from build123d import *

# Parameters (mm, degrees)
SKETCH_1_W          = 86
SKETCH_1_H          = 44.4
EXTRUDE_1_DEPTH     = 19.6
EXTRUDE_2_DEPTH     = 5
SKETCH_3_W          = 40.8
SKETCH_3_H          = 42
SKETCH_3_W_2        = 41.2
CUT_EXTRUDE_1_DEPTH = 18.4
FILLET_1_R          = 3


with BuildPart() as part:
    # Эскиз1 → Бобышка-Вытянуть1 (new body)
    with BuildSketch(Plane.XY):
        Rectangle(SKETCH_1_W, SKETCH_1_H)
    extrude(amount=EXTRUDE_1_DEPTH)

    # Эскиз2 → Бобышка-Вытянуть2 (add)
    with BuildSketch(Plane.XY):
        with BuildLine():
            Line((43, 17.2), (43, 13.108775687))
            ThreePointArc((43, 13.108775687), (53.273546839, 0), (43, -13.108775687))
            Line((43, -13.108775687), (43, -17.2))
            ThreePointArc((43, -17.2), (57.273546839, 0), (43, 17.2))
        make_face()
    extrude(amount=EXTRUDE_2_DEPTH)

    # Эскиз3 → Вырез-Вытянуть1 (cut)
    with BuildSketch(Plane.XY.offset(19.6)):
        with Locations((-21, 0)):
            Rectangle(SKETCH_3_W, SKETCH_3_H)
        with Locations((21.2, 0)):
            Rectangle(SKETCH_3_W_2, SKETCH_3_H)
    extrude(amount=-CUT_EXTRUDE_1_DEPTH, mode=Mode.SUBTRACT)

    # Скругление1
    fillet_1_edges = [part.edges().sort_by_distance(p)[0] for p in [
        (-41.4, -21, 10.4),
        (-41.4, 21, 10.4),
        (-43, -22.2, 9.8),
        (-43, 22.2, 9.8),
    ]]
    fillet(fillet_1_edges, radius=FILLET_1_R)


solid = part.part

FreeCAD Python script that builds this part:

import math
import FreeCAD as App
import Part
import Sketcher


def edges_at(feature, points):
    """Names of the edges that pass closest to the given points."""
    edges = feature.Shape.Edges
    near = lambda p: min(range(len(edges)), key=lambda i: edges[i].distToShape(Part.Vertex(*p))[0])
    return sorted({f"Edge{near(p) + 1}" for p in points})


def add_polygon(sketch, points):
    """Adds a closed chain of lines whose ends are joined by coincident constraints."""
    first, n = sketch.GeometryCount, len(points)
    for a, b in zip(points, points[1:] + points[:1]):
        sketch.addGeometry(Part.LineSegment(App.Vector(*a, 0), App.Vector(*b, 0)), False)
    for i in range(n):
        sketch.addConstraint(Sketcher.Constraint("Coincident", first + i, 2, first + (i + 1) % n, 1))

doc = App.newDocument("Part")
params = doc.addObject("Spreadsheet::Sheet", "Params")
for row, (alias, value) in enumerate([
    ("sketch1_width", "86 mm"),
    ("sketch1_height", "44.4 mm"),
    ("pad1_length", "19.6 mm"),
    ("sketch2_radius", "13.5 mm"),
    ("sketch2_radius2", "17.5 mm"),
    ("pad2_length", "5 mm"),
    ("sketch3_height", "42 mm"),
    ("sketch3_width", "40.8 mm"),
    ("sketch3_width2", "41.2 mm"),
    ("pocket1_length", "18.4 mm"),
    ("fillet_radius", "3 mm"),
], start=1):
    params.set(f"A{row}", alias)
    params.set(f"B{row}", "=" + value)
    params.setAlias(f"B{row}", alias)

body = doc.addObject("PartDesign::Body", "Body")

sketch1 = body.newObject("Sketcher::SketchObject", "Sketch")
sketch1.AttachmentSupport = (doc.getObject("XY_Plane"), [""])
sketch1.MapMode = "FlatFace"
add_polygon(sketch1, [(-43, 22.2), (-43, -22.2), (43, -22.2), (43, 22.2)])
sketch1.addConstraint(Sketcher.Constraint("Vertical", 0))
sketch1.addConstraint(Sketcher.Constraint("Horizontal", 1))
sketch1.addConstraint(Sketcher.Constraint("Vertical", 2))
sketch1.addConstraint(Sketcher.Constraint("Horizontal", 3))
sketch1.addConstraint(Sketcher.Constraint("Symmetric", 0, 2, 2, 2, -1, 1))
sketch1.addConstraint(Sketcher.Constraint("DistanceX", 1, 1, 1, 2, 86.0))
sketch1.addConstraint(Sketcher.Constraint("DistanceY", 0, 2, 0, 1, 44.4))
sketch1.setExpression("Constraints[9]", "Params.sketch1_width")
sketch1.setExpression("Constraints[10]", "Params.sketch1_height")
pad1 = body.newObject("PartDesign::Pad", "Pad")
pad1.Profile = sketch1
pad1.setExpression("Length", "Params.pad1_length")

sketch2 = body.newObject("Sketcher::SketchObject", "Sketch001")
sketch2.AttachmentSupport = (doc.getObject("XY_Plane"), [""])
sketch2.MapMode = "FlatFace"
sketch2.addGeometry(Part.LineSegment(App.Vector(43, 17.2, 0), App.Vector(43, 13.108776, 0)), False)
sketch2.addGeometry(Part.ArcOfCircle(Part.Circle(App.Vector(39.773547, 0, 0), App.Vector(0, 0, 1), 13.5), math.radians(-76.172678), math.radians(76.172678)), False)
sketch2.addGeometry(Part.LineSegment(App.Vector(43, -13.108776, 0), App.Vector(43, -17.2, 0)), False)
sketch2.addGeometry(Part.ArcOfCircle(Part.Circle(App.Vector(39.773547, 0, 0), App.Vector(0, 0, 1), 17.5), math.radians(-79.375668), math.radians(79.375668)), False)
sketch2.addConstraint(Sketcher.Constraint("Coincident", 0, 2, 1, 2))
sketch2.addConstraint(Sketcher.Constraint("Coincident", 1, 1, 2, 1))
sketch2.addConstraint(Sketcher.Constraint("Coincident", 2, 2, 3, 1))
sketch2.addConstraint(Sketcher.Constraint("Coincident", 3, 2, 0, 1))
sketch2.addConstraint(Sketcher.Constraint("Vertical", 0))
sketch2.addConstraint(Sketcher.Constraint("Vertical", 2))
sketch2.addConstraint(Sketcher.Constraint("Coincident", 3, 3, 1, 3))
sketch2.addConstraint(Sketcher.Constraint("Symmetric", 0, 2, 1, 1, -1))
sketch2.addConstraint(Sketcher.Constraint("Radius", 1, 13.5))
sketch2.addConstraint(Sketcher.Constraint("Radius", 3, 17.5))
sketch2.addConstraint(Sketcher.Constraint("DistanceX", -1, 1, 0, 2, 43.0))
sketch2.addConstraint(Sketcher.Constraint("DistanceY", 2, 2, -1, 1, 17.2))
sketch2.setExpression("Constraints[8]", "Params.sketch2_radius")
sketch2.setExpression("Constraints[9]", "Params.sketch2_radius2")
pad2 = body.newObject("PartDesign::Pad", "Pad001")
pad2.Profile = sketch2
pad2.setExpression("Length", "Params.pad2_length")

sketch3 = body.newObject("Sketcher::SketchObject", "Sketch002")
sketch3.AttachmentSupport = (doc.getObject("XY_Plane"), [""])
sketch3.MapMode = "FlatFace"
sketch3.AttachmentOffset = App.Placement(App.Vector(0, 0, 19.6), App.Rotation())
add_polygon(sketch3, [(-41.4, 21), (-41.4, -21), (-0.6, -21), (-0.6, 21)])
add_polygon(sketch3, [(0.6, 21), (0.6, -21), (41.8, -21), (41.8, 21)])
sketch3.addConstraint(Sketcher.Constraint("Vertical", 0))
sketch3.addConstraint(Sketcher.Constraint("Horizontal", 1))
sketch3.addConstraint(Sketcher.Constraint("Vertical", 2))
sketch3.addConstraint(Sketcher.Constraint("Horizontal", 3))
sketch3.addConstraint(Sketcher.Constraint("Vertical", 4))
sketch3.addConstraint(Sketcher.Constraint("Horizontal", 5))
sketch3.addConstraint(Sketcher.Constraint("Vertical", 6))
sketch3.addConstraint(Sketcher.Constraint("Horizontal", 7))
sketch3.addConstraint(Sketcher.Constraint("Symmetric", 2, 2, 4, 2, -1, 1))
sketch3.addConstraint(Sketcher.Constraint("Horizontal", 1, 2, 4, 2))
sketch3.addConstraint(Sketcher.Constraint("Horizontal", 3, 2, 6, 2))
sketch3.addConstraint(Sketcher.Constraint("DistanceY", 0, 2, 0, 1, 42.0))
sketch3.addConstraint(Sketcher.Constraint("DistanceX", 1, 1, 1, 2, 40.8))
sketch3.addConstraint(Sketcher.Constraint("DistanceX", 5, 1, 5, 2, 41.2))
sketch3.addConstraint(Sketcher.Constraint("DistanceX", 0, 2, 4, 2, 42.0))
sketch3.setExpression("Constraints[19]", "Params.sketch3_height")
sketch3.setExpression("Constraints[20]", "Params.sketch3_width")
sketch3.setExpression("Constraints[21]", "Params.sketch3_width2")
pocket1 = body.newObject("PartDesign::Pocket", "Pocket")
pocket1.Profile = sketch3
pocket1.setExpression("Length", "Params.pocket1_length")
doc.recompute()

fillet = body.newObject("PartDesign::Fillet", "Fillet")
fillet.Base = (pocket1, edges_at(pocket1, [
    (-41.4, -21, 10.4),
    (-41.4, 21, 10.4),
    (-43, -22.2, 9.8),
    (-43, 22.2, 9.8),
]))
fillet.setExpression("Radius", "Params.fillet_radius")

doc.recompute()
